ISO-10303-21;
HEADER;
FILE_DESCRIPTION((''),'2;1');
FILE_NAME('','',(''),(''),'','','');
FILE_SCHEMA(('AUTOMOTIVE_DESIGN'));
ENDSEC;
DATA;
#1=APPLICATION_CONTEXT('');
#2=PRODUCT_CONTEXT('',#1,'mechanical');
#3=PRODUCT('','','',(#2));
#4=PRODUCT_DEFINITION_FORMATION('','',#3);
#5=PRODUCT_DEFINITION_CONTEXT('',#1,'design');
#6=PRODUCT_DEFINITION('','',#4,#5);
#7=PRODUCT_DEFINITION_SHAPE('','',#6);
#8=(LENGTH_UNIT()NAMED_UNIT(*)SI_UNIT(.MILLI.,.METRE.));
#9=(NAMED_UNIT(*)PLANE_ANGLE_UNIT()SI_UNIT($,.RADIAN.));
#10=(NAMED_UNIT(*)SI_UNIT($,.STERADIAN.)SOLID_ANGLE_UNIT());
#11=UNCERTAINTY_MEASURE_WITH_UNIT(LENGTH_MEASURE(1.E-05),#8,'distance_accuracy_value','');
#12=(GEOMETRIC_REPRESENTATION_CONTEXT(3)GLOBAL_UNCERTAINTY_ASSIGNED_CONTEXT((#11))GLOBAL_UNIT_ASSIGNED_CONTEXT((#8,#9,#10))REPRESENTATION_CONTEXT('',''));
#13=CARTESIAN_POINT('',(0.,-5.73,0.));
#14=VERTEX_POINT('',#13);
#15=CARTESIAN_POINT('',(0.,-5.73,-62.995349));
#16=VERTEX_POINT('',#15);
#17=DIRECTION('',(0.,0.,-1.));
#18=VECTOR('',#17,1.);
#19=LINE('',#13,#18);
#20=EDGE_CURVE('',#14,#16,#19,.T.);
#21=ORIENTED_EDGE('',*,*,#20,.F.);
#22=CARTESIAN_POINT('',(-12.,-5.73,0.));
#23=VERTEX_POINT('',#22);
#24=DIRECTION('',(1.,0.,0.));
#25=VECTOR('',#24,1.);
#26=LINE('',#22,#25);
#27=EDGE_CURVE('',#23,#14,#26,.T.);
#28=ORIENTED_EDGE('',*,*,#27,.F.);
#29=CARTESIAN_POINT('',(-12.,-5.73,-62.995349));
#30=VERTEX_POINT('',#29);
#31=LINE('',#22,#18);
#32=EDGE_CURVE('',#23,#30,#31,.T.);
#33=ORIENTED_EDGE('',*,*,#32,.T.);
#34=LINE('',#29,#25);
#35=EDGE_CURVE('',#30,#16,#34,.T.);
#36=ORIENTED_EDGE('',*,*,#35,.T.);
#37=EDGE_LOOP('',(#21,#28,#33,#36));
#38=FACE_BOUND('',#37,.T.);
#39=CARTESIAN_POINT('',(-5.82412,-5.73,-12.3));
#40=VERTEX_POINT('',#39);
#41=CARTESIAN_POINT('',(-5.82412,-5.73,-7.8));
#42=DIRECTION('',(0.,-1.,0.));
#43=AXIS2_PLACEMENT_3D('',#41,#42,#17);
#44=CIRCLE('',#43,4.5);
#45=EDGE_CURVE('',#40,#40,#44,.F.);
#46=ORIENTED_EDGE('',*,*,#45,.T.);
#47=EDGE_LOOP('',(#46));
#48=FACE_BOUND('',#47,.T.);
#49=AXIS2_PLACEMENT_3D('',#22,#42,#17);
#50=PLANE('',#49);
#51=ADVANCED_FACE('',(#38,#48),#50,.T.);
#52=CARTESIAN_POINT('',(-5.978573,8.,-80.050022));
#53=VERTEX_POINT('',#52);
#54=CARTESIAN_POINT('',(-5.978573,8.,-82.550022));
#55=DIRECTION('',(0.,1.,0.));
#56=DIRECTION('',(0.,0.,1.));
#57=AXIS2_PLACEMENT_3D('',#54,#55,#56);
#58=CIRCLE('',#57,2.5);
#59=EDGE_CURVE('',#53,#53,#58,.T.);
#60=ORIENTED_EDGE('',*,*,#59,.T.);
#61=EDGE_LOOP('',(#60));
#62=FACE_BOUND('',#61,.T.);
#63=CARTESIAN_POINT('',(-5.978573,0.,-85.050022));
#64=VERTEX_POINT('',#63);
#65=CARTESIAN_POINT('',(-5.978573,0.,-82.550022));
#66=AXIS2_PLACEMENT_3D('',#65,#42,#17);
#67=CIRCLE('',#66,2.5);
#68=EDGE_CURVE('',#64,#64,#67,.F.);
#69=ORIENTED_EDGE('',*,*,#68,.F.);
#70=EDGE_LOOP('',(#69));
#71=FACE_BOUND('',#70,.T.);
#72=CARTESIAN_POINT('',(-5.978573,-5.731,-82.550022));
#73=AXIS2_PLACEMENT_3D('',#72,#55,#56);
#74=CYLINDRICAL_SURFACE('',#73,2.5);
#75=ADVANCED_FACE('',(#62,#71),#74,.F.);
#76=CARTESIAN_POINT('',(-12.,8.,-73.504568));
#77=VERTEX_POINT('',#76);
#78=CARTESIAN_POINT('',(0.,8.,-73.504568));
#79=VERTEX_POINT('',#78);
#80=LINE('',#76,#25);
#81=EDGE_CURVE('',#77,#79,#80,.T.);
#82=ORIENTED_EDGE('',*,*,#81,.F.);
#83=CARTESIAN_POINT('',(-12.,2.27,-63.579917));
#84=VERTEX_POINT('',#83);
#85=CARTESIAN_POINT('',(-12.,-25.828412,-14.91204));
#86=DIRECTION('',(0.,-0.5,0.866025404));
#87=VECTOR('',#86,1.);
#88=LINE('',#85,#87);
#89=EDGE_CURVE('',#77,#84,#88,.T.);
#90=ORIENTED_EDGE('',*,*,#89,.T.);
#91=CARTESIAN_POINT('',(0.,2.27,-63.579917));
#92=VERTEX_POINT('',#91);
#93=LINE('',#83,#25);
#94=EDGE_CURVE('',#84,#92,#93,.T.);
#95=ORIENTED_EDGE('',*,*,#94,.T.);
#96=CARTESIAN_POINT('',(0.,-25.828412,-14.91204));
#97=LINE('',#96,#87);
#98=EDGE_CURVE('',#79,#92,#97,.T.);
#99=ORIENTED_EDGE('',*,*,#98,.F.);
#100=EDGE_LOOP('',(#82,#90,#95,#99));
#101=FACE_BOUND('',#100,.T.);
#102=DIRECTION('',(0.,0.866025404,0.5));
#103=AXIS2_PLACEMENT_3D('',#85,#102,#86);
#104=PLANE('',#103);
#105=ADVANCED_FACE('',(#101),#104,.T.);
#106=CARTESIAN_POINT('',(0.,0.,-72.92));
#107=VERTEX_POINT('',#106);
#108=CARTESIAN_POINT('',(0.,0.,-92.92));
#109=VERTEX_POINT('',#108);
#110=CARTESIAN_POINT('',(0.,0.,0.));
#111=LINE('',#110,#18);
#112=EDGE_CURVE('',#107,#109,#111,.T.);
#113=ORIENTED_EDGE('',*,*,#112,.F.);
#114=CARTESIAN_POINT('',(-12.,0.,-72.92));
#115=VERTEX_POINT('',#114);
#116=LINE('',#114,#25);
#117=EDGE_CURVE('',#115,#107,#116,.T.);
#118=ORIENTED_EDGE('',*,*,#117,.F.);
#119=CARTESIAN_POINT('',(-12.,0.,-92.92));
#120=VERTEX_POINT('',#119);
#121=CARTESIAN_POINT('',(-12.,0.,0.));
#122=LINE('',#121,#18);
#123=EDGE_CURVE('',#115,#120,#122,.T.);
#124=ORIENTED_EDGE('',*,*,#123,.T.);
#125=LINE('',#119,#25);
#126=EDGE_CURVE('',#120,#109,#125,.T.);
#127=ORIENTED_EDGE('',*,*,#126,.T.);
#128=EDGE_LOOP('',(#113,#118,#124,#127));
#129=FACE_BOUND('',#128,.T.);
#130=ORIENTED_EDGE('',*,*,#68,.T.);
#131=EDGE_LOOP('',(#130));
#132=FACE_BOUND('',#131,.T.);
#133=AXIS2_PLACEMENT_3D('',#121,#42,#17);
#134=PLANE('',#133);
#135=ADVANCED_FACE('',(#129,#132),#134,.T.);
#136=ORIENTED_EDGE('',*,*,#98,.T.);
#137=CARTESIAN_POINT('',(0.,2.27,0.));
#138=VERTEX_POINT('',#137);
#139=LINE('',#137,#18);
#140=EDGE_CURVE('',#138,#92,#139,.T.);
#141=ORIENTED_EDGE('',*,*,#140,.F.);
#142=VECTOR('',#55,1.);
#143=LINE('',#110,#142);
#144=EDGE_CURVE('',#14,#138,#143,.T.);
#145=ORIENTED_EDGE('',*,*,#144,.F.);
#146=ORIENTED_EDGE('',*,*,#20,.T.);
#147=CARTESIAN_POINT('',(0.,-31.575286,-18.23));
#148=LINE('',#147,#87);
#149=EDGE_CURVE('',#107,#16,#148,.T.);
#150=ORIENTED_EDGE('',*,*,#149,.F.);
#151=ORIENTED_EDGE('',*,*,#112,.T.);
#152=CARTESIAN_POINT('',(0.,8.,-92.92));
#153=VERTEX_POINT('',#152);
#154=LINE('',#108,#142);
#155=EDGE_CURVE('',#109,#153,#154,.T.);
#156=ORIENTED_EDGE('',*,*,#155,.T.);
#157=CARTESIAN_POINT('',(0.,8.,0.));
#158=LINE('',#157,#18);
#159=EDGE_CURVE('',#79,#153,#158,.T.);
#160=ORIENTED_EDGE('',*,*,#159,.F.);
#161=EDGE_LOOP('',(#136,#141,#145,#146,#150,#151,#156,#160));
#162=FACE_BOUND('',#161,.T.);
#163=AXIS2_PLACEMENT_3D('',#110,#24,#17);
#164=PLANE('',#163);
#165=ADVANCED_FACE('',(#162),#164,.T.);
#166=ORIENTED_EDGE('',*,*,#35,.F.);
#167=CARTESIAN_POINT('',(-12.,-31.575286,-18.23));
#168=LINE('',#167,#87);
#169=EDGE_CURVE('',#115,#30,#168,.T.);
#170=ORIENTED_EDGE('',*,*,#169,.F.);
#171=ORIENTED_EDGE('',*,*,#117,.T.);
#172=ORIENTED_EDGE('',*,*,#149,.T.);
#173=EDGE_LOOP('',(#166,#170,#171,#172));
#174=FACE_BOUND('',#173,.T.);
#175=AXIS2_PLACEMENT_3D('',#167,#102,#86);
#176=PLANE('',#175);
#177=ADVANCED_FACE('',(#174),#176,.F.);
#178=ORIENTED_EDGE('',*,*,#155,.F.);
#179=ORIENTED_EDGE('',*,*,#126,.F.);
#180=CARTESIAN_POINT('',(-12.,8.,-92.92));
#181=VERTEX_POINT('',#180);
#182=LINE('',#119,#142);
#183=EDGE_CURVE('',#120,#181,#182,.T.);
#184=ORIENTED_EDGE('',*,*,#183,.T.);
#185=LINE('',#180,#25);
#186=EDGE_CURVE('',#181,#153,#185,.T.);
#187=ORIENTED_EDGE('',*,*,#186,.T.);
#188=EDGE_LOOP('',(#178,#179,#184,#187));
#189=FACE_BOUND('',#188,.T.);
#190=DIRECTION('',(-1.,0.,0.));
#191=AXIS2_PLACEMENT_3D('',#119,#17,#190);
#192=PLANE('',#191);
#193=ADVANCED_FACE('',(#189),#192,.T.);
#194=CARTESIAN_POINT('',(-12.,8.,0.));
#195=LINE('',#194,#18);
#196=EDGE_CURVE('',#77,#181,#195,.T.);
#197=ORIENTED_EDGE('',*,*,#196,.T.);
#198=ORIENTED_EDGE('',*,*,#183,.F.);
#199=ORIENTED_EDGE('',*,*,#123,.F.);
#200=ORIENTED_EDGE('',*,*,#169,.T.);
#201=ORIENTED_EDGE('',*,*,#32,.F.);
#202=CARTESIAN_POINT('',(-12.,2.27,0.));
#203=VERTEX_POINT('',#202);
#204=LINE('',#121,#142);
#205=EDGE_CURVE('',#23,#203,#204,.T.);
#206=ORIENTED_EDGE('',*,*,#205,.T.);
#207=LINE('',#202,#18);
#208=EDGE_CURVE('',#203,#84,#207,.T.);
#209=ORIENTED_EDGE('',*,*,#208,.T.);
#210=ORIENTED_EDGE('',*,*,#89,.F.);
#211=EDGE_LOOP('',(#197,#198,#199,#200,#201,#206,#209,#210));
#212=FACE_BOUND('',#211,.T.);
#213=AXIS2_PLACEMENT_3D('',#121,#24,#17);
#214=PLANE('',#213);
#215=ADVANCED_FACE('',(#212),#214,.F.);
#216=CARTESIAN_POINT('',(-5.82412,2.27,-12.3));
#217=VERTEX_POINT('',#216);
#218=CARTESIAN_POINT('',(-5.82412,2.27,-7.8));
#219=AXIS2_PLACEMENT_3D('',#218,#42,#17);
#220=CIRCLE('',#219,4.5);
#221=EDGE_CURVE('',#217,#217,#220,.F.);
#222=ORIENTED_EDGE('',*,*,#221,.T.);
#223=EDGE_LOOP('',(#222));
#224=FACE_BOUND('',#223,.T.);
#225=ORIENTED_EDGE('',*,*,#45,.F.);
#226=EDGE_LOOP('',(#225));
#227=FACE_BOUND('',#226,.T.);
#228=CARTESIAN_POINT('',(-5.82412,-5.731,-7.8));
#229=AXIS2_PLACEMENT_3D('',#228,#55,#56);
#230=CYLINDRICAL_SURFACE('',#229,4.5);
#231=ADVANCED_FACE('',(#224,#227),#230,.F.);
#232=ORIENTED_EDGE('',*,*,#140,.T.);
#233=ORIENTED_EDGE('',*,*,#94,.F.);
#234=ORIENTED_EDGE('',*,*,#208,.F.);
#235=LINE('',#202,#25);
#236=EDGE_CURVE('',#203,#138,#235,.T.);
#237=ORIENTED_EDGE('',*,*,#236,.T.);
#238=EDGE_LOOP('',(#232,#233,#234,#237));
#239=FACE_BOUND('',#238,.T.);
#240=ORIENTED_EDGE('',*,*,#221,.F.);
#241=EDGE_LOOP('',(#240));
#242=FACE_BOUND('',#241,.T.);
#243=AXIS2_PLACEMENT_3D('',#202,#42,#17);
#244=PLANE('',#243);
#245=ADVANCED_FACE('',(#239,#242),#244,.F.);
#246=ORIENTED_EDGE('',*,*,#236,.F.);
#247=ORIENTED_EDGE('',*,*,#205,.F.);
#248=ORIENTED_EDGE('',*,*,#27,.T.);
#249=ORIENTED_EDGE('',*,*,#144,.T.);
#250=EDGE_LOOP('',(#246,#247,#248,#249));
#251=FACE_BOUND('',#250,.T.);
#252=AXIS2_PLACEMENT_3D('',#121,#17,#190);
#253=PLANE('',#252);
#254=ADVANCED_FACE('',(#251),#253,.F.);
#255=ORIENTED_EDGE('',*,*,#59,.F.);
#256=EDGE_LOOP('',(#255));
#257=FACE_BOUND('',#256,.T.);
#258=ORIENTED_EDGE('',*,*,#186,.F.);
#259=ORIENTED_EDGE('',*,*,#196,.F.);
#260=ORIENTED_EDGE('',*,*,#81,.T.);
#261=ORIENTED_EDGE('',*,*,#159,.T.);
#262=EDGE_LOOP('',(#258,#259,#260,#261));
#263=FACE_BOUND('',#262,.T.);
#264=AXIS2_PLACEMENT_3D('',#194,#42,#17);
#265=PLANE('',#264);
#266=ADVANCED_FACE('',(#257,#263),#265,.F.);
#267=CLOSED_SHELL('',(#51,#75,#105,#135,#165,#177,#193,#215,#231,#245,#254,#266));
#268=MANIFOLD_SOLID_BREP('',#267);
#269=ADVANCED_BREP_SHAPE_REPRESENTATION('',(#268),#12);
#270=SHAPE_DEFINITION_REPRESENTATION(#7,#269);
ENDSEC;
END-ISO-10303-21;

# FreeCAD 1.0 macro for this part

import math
import FreeCAD as App
import Part
import Sketcher
Q = App.Units.Quantity


def add_polygon(sketch, points):
    """Adds a closed chain of lines whose ends are joined by coincident constraints."""
    first, n = sketch.GeometryCount, len(points)
    for a, b in zip(points, points[1:] + points[:1]):
        sketch.addGeometry(Part.LineSegment(App.Vector(*a, 0), App.Vector(*b, 0)), False)
    for i in range(n):
        sketch.addConstraint(Sketcher.Constraint("Coincident", first + i, 2, first + (i + 1) % n, 1))

doc = App.newDocument("Part")
params = doc.addObject("Spreadsheet::Sheet", "Params")
for row, (alias, value) in enumerate([
    ("sketch1_width", "8 mm"),
    ("sketch1_height", "20 mm"),
    ("sketch1_length", "11.46 mm"),
    ("pad1_length", "12 mm"),
    ("sketch2_radius", "4.5 mm"),
    ("sketch2_radius2", "2.5 mm"),
    ("pocket1_length", "13.73 mm"),
], start=1):
    params.set(f"A{row}", alias)
    params.set(f"B{row}", "=" + value)
    params.setAlias(f"B{row}", alias)

body = doc.addObject("PartDesign::Body", "Body")

sketch1 = body.newObject("Sketcher::SketchObject", "Sketch")
sketch1.AttachmentSupport = (doc.getObject("YZ_Plane"), [""])
sketch1.MapMode = "FlatFace"
add_polygon(sketch1, [(-6, -63), (0, -73), (0, -93), (8, -93), (8, -74), (2, -64), (2, 0), (-6, 0)])
sketch1.addConstraint(Sketcher.Constraint("Vertical", 1))
sketch1.addConstraint(Sketcher.Constraint("Horizontal", 2))
sketch1.addConstraint(Sketcher.Constraint("Vertical", 3))
sketch1.addConstraint(Sketcher.Constraint("Vertical", 5))
sketch1.addConstraint(Sketcher.Constraint("Horizontal", 6))
sketch1.addConstraint(Sketcher.Constraint("Vertical", 7))
sketch1.addConstraint(Sketcher.Constraint("PointOnObject", 0, 2, -2))
sketch1.addConstraint(Sketcher.Constraint("PointOnObject", 5, 2, -1))
sketch1.addConstraint(Sketcher.Constraint("Parallel", 0, 4))
sketch1.addConstraint(Sketcher.Constraint("Equal", 2, 6))
sketch1.addConstraint(Sketcher.Constraint("DistanceX", 2, 1, 2, 2, 8.0))
sketch1.addConstraint(Sketcher.Constraint("DistanceY", 1, 2, 1, 1, 20.0))
sketch1.addConstraint(Sketcher.Constraint("Angle", 0, Q("-60 deg")))
sketch1.addConstraint(Sketcher.Constraint("Distance", 0, 11.46))
sketch1.addConstraint(Sketcher.Constraint("DistanceY", 0, 2, -1, 1, 72.92))
sketch1.addConstraint(Sketcher.Constraint("DistanceY", 3, 1, 3, 2, 19.415432))
sketch1.setExpression("Constraints[18]", "Params.sketch1_width")
sketch1.setExpression("Constraints[19]", "Params.sketch1_height")
sketch1.setExpression("Constraints[21]", "Params.sketch1_length")
pad1 = body.newObject("PartDesign::Pad", "Pad")
pad1.Profile = sketch1
pad1.setExpression("Length", "Params.pad1_length")
pad1.Reversed = True

sketch2 = body.newObject("Sketcher::SketchObject", "Sketch001")
sketch2.AttachmentSupport = (doc.getObject("XZ_Plane"), [""])
sketch2.MapMode = "FlatFace"
sketch2.AttachmentOffset = App.Placement(App.Vector(0, 0, -8), App.Rotation())
sketch2.addGeometry(Part.ArcOfCircle(Part.Circle(App.Vector(-5.8, -7.8, 0), App.Vector(0, 0, 1), 4.5), math.radians(90), math.radians(270)), False)
sketch2.addGeometry(Part.ArcOfCircle(Part.Circle(App.Vector(-5.8, -7.8, 0), App.Vector(0, 0, 1), 4.5), math.radians(0), math.radians(90)), False)
sketch2.addGeometry(Part.ArcOfCircle(Part.Circle(App.Vector(-5.8, -7.8, 0), App.Vector(0, 0, 1), 4.5), math.radians(-90), math.radians(0)), False)
sketch2.addGeometry(Part.ArcOfCircle(Part.Circle(App.Vector(-6, -82.6, 0), App.Vector(0, 0, 1), 2.5), math.radians(90), math.radians(270)), False)
sketch2.addGeometry(Part.ArcOfCircle(Part.Circle(App.Vector(-6, -82.6, 0), App.Vector(0, 0, 1), 2.5), math.radians(0), math.radians(90)), False)
sketch2.addGeometry(Part.ArcOfCircle(Part.Circle(App.Vector(-6, -82.6, 0), App.Vector(0, 0, 1), 2.5), math.radians(-90), math.radians(0)), False)
sketch2.addConstraint(Sketcher.Constraint("Tangent", 0, 1, 1, 2))
sketch2.addConstraint(Sketcher.Constraint("Tangent", 1, 1, 2, 2))
sketch2.addConstraint(Sketcher.Constraint("Tangent", 2, 1, 0, 2))
sketch2.addConstraint(Sketcher.Constraint("Tangent", 3, 1, 4, 2))
sketch2.addConstraint(Sketcher.Constraint("Tangent", 4, 1, 5, 2))
sketch2.addConstraint(Sketcher.Constraint("Tangent", 5, 1, 3, 2))
sketch2.addConstraint(Sketcher.Constraint("Horizontal", 2, 3, 1, 1))
sketch2.addConstraint(Sketcher.Constraint("Horizontal", 5, 3, 4, 1))
sketch2.addConstraint(Sketcher.Constraint("Radius", 0, 4.5))
sketch2.addConstraint(Sketcher.Constraint("Radius", 3, 2.5))
sketch2.addConstraint(Sketcher.Constraint("DistanceY", 0, 3, -1, 1, 7.8))
sketch2.addConstraint(Sketcher.Constraint("DistanceX", 2, 3, 0, 1, 0.009298))
sketch2.addConstraint(Sketcher.Constraint("DistanceX", 2, 1, 1, 3, 0.009298))
sketch2.addConstraint(Sketcher.Constraint("DistanceX", 0, 3, -1, 1, 5.82412))
sketch2.addConstraint(Sketcher.Constraint("DistanceX", 5, 1, -1, 1, 5.983739))
sketch2.addConstraint(Sketcher.Constraint("DistanceX", 4, 3, 0, 1, 0.163751))
sketch2.addConstraint(Sketcher.Constraint("DistanceX", 3, 1, 2, 1, 0.139989))
sketch2.addConstraint(Sketcher.Constraint("DistanceY", 4, 1, 2, 1, 70.250032))
sketch2.setExpression("Constraints[8]", "Params.sketch2_radius")
sketch2.setExpression("Constraints[9]", "Params.sketch2_radius2")
pocket1 = body.newObject("PartDesign::Pocket", "Pocket")
pocket1.Profile = sketch2
pocket1.setExpression("Length", "Params.pocket1_length")
pocket1.Reversed = True

doc.recompute()
